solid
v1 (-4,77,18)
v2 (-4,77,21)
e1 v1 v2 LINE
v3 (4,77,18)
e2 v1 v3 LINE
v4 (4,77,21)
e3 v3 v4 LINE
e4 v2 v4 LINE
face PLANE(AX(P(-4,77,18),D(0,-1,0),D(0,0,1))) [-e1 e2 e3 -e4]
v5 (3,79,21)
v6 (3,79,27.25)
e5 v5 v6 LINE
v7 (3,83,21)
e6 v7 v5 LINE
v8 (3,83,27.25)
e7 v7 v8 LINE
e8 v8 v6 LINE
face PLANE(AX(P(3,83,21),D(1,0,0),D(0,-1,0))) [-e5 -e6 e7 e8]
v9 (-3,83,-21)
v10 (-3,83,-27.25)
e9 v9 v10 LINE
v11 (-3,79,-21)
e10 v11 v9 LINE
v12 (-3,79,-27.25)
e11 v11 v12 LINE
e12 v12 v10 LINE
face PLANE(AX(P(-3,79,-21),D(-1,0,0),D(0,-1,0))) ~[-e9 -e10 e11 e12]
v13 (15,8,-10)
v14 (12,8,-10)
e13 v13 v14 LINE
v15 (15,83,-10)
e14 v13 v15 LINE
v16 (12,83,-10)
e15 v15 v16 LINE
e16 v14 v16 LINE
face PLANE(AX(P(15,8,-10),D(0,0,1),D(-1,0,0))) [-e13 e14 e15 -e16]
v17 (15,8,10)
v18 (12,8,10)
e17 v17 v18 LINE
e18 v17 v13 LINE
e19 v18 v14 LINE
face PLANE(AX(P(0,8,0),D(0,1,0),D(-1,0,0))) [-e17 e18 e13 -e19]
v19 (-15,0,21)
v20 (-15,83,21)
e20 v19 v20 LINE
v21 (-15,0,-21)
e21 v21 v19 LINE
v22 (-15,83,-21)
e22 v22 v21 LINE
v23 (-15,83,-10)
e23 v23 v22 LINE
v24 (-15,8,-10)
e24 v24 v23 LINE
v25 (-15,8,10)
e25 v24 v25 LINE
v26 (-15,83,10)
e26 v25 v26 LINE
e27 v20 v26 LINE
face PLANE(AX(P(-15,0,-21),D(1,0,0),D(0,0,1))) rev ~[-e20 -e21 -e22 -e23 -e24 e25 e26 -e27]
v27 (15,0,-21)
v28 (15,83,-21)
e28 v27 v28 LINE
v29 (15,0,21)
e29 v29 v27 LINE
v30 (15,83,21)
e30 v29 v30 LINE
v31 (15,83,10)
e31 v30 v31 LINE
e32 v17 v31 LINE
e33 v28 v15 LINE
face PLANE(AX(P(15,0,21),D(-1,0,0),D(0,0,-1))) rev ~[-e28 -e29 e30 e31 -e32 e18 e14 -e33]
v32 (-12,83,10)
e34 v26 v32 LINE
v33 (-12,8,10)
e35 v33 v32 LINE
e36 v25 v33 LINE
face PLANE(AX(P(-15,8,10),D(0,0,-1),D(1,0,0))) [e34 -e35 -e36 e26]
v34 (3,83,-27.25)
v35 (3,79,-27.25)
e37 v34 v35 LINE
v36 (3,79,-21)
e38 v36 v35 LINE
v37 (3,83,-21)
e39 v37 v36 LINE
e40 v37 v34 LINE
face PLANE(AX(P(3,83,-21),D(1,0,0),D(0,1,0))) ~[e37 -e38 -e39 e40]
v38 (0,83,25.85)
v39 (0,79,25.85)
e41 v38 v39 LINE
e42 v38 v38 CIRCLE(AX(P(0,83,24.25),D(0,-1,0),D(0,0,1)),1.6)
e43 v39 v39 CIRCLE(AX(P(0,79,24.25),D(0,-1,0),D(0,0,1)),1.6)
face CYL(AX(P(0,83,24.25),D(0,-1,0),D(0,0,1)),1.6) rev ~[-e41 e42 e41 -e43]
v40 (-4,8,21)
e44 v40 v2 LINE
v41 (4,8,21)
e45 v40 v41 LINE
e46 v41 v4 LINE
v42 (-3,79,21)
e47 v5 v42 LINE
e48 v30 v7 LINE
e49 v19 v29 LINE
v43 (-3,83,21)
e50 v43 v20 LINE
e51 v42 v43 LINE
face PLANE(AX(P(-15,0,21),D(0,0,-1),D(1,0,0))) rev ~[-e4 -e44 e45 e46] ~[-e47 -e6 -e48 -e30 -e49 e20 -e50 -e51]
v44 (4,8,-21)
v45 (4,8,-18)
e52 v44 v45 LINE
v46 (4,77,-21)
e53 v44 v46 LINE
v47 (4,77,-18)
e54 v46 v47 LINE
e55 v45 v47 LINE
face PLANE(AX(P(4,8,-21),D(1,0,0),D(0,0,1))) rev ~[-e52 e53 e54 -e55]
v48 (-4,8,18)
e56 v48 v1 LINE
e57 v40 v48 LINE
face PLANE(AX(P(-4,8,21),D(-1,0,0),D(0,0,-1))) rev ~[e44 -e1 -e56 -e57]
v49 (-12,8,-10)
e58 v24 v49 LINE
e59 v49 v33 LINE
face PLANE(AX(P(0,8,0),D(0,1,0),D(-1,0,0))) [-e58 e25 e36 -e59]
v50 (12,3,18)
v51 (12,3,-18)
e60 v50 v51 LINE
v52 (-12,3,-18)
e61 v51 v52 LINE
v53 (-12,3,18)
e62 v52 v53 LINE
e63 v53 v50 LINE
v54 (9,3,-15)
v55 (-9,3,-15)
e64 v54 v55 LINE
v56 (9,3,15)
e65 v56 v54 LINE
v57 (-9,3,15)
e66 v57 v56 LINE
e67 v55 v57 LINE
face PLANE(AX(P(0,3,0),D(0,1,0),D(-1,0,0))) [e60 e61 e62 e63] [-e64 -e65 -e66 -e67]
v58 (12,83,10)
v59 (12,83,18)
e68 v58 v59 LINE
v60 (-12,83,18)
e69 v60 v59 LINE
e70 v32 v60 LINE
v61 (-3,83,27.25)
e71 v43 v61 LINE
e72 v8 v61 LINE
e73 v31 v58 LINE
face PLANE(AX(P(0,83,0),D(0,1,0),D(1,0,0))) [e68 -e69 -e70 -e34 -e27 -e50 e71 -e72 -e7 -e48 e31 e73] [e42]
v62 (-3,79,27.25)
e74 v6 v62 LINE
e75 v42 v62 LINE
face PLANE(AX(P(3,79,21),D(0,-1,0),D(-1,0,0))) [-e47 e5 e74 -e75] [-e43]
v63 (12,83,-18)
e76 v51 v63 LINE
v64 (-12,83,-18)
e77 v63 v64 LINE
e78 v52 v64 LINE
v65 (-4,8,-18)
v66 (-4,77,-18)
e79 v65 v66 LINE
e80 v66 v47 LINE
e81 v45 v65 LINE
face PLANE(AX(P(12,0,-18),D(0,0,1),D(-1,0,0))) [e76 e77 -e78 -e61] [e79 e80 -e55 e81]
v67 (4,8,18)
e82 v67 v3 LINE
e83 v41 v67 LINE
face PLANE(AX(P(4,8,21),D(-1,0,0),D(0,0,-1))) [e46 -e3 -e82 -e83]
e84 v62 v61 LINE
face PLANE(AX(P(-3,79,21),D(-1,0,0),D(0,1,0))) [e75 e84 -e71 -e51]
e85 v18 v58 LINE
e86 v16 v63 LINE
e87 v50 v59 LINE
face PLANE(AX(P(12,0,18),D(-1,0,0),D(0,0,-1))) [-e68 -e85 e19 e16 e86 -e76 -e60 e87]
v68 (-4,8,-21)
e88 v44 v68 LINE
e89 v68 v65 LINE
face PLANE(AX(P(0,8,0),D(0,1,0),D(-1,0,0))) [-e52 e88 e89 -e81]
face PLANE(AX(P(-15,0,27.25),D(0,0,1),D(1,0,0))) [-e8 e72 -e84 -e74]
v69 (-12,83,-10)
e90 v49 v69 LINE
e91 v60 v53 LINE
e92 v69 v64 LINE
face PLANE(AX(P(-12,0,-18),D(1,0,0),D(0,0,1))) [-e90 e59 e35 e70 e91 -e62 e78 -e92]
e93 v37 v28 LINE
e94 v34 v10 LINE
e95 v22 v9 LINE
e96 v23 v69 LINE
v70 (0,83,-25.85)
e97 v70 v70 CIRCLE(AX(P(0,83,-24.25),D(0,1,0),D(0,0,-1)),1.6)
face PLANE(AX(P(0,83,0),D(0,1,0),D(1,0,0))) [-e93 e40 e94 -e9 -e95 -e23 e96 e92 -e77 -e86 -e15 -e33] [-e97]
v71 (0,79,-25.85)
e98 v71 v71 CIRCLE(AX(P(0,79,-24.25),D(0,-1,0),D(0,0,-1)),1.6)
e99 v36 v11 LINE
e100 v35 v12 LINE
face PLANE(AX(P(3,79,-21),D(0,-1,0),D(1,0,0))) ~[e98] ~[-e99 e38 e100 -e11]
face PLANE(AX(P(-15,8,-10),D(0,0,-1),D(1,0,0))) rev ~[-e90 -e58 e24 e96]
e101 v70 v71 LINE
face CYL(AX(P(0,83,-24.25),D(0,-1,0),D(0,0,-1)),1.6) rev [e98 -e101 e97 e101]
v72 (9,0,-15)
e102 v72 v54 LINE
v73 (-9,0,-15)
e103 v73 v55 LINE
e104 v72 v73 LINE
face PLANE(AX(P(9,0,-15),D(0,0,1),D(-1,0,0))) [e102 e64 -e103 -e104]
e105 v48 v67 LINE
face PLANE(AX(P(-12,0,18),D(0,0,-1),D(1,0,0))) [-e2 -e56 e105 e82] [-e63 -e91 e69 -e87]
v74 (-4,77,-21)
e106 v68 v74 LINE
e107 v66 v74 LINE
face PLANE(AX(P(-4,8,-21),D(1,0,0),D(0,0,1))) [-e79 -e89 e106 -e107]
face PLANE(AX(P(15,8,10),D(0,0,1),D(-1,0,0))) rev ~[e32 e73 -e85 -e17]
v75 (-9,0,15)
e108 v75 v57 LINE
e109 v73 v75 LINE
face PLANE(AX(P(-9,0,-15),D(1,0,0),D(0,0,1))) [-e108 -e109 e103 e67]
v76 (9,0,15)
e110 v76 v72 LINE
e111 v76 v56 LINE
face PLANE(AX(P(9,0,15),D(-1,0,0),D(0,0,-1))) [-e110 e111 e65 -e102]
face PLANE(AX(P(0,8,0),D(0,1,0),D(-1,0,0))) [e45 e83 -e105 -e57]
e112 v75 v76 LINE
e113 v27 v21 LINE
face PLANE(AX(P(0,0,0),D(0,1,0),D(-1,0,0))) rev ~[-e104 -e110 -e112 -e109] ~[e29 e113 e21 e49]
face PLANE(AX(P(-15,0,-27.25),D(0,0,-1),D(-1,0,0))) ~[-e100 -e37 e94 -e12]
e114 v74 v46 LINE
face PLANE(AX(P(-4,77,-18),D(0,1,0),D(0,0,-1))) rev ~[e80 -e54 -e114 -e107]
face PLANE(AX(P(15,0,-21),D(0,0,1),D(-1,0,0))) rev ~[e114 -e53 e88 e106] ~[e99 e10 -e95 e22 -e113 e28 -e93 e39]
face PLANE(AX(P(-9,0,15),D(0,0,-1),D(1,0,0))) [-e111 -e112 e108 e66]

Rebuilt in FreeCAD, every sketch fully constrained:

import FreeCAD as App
import Part
import Sketcher
from FreeCAD import Vector
Q = App.Units.Quantity

doc = App.newDocument("Part")
body = doc.addObject("PartDesign::Body", "Body")

# Sketch on XZ plane
sketch1 = body.newObject("Sketcher::SketchObject", "Sketch")
sketch1.AttachmentSupport = (doc.getObject("XZ_Plane"), [""])
sketch1.MapMode = "FlatFace"
sketch1.addGeometry([
    Part.LineSegment(Vector(-12, -18, 0), Vector(-12, 18, 0)),  # 0
    Part.LineSegment(Vector(-12, 18, 0), Vector(12, 18, 0)),  # 1
    Part.LineSegment(Vector(12, 18, 0), Vector(12, -18, 0)),  # 2
    Part.LineSegment(Vector(12, -18, 0), Vector(-12, -18, 0)),  # 3
    Part.LineSegment(Vector(9, 15, 0), Vector(-9, 15, 0)),  # 4
    Part.LineSegment(Vector(-9, 15, 0), Vector(-9, -15, 0)),  # 5
    Part.LineSegment(Vector(-9, -15, 0), Vector(9, -15, 0)),  # 6
    Part.LineSegment(Vector(9, -15, 0), Vector(9, 15, 0)),  # 7
], False)
sketch1.addConstraint([
    Sketcher.Constraint("Coincident", 0, 2, 1, 1),
    Sketcher.Constraint("Coincident", 1, 2, 2, 1),
    Sketcher.Constraint("Coincident", 2, 2, 3, 1),
    Sketcher.Constraint("Coincident", 3, 2, 0, 1),
    Sketcher.Constraint("Coincident", 4, 2, 5, 1),
    Sketcher.Constraint("Coincident", 5, 2, 6, 1),
    Sketcher.Constraint("Coincident", 6, 2, 7, 1),
    Sketcher.Constraint("Coincident", 7, 2, 4, 1),
    Sketcher.Constraint("Vertical", 0),
    Sketcher.Constraint("Horizontal", 1),
    Sketcher.Constraint("Vertical", 2),
    Sketcher.Constraint("Horizontal", 3),
    Sketcher.Constraint("Horizontal", 4),
    Sketcher.Constraint("Vertical", 5),
    Sketcher.Constraint("Horizontal", 6),
    Sketcher.Constraint("Vertical", 7),
    Sketcher.Constraint("Symmetric", 0, 2, 2, 2, -1, 1),
    Sketcher.Constraint("Symmetric", 4, 2, 6, 2, -1, 1),
    Sketcher.Constraint("DistanceX", 1, 1, 1, 2, Q("24 mm")),
    Sketcher.Constraint("DistanceX", 4, 2, 4, 1, Q("18 mm")),
    Sketcher.Constraint("DistanceY", 0, 1, 0, 2, Q("36 mm")),
    Sketcher.Constraint("DistanceY", 5, 2, 5, 1, Q("30 mm")),
])
pad1 = body.newObject("PartDesign::Pad", "Pad")
pad1.Profile = sketch1
pad1.Length = 3
pad1.Reversed = True

# Sketch on XZ plane
sketch2 = body.newObject("Sketcher::SketchObject", "Sketch001")
sketch2.AttachmentSupport = (doc.getObject("XZ_Plane"), [""])
sketch2.MapMode = "FlatFace"
sketch2.addGeometry([
    Part.LineSegment(Vector(-15, -21, 0), Vector(-15, 21, 0)),  # 0
    Part.LineSegment(Vector(-15, 21, 0), Vector(15, 21, 0)),  # 1
    Part.LineSegment(Vector(15, 21, 0), Vector(15, -21, 0)),  # 2
    Part.LineSegment(Vector(15, -21, 0), Vector(-15, -21, 0)),  # 3
    Part.LineSegment(Vector(12, 18, 0), Vector(-12, 18, 0)),  # 4
    Part.LineSegment(Vector(-12, 18, 0), Vector(-12, -18, 0)),  # 5
    Part.LineSegment(Vector(-12, -18, 0), Vector(12, -18, 0)),  # 6
    Part.LineSegment(Vector(12, -18, 0), Vector(12, 18, 0)),  # 7
], False)
sketch2.addConstraint([
    Sketcher.Constraint("Coincident", 0, 2, 1, 1),
    Sketcher.Constraint("Coincident", 1, 2, 2, 1),
    Sketcher.Constraint("Coincident", 2, 2, 3, 1),
    Sketcher.Constraint("Coincident", 3, 2, 0, 1),
    Sketcher.Constraint("Coincident", 4, 2, 5, 1),
    Sketcher.Constraint("Coincident", 5, 2, 6, 1),
    Sketcher.Constraint("Coincident", 6, 2, 7, 1),
    Sketcher.Constraint("Coincident", 7, 2, 4, 1),
    Sketcher.Constraint("Vertical", 0),
    Sketcher.Constraint("Horizontal", 1),
    Sketcher.Constraint("Vertical", 2),
    Sketcher.Constraint("Horizontal", 3),
    Sketcher.Constraint("Horizontal", 4),
    Sketcher.Constraint("Vertical", 5),
    Sketcher.Constraint("Horizontal", 6),
    Sketcher.Constraint("Vertical", 7),
    Sketcher.Constraint("Symmetric", 0, 2, 2, 2, -1, 1),
    Sketcher.Constraint("Symmetric", 4, 2, 6, 2, -1, 1),
    Sketcher.Constraint("DistanceX", 1, 1, 1, 2, Q("30 mm")),
    Sketcher.Constraint("DistanceX", 4, 2, 4, 1, Q("24 mm")),
    Sketcher.Constraint("DistanceY", 0, 1, 0, 2, Q("42 mm")),
    Sketcher.Constraint("DistanceY", 5, 2, 5, 1, Q("36 mm")),
])
pad2 = body.newObject("PartDesign::Pad", "Pad001")
pad2.Profile = sketch2
pad2.Length = 8
pad2.Reversed = True

# Sketch on XZ plane
sketch3 = body.newObject("Sketcher::SketchObject", "Sketch002")
sketch3.AttachmentSupport = (doc.getObject("XZ_Plane"), [""])
sketch3.MapMode = "FlatFace"
sketch3.AttachmentOffset = App.Placement(Vector(0, 0, -8), App.Rotation())
sketch3.addGeometry([
    Part.LineSegment(Vector(-4, -21, 0), Vector(-15, -21, 0)),  # 0
    Part.LineSegment(Vector(-15, -21, 0), Vector(-15, -10, 0)),  # 1
    Part.LineSegment(Vector(-15, -10, 0), Vector(-12, -10, 0)),  # 2
    Part.LineSegment(Vector(-12, -10, 0), Vector(-12, -18, 0)),  # 3
    Part.LineSegment(Vector(-12, -18, 0), Vector(-4, -18, 0)),  # 4
    Part.LineSegment(Vector(-4, -18, 0), Vector(-4, -21, 0)),  # 5
    Part.LineSegment(Vector(12, -10, 0), Vector(15, -10, 0)),  # 6
    Part.LineSegment(Vector(15, -10, 0), Vector(15, -21, 0)),  # 7
    Part.LineSegment(Vector(15, -21, 0), Vector(4, -21, 0)),  # 8
    Part.LineSegment(Vector(4, -21, 0), Vector(4, -18, 0)),  # 9
    Part.LineSegment(Vector(4, -18, 0), Vector(12, -18, 0)),  # 10
    Part.LineSegment(Vector(12, -18, 0), Vector(12, -10, 0)),  # 11
    Part.LineSegment(Vector(12, 18, 0), Vector(4, 18, 0)),  # 12
    Part.LineSegment(Vector(4, 18, 0), Vector(4, 21, 0)),  # 13
    Part.LineSegment(Vector(4, 21, 0), Vector(15, 21, 0)),  # 14
    Part.LineSegment(Vector(15, 21, 0), Vector(15, 10, 0)),  # 15
    Part.LineSegment(Vector(15, 10, 0), Vector(12, 10, 0)),  # 16
    Part.LineSegment(Vector(12, 10, 0), Vector(12, 18, 0)),  # 17
    Part.LineSegment(Vector(-12, 10, 0), Vector(-15, 10, 0)),  # 18
    Part.LineSegment(Vector(-15, 10, 0), Vector(-15, 21, 0)),  # 19
    Part.LineSegment(Vector(-15, 21, 0), Vector(-4, 21, 0)),  # 20
    Part.LineSegment(Vector(-4, 21, 0), Vector(-4, 18, 0)),  # 21
    Part.LineSegment(Vector(-4, 18, 0), Vector(-12, 18, 0)),  # 22
    Part.LineSegment(Vector(-12, 18, 0), Vector(-12, 10, 0)),  # 23
], False)
sketch3.addConstraint([
    Sketcher.Constraint("Coincident", 0, 2, 1, 1),
    Sketcher.Constraint("Coincident", 1, 2, 2, 1),
    Sketcher.Constraint("Coincident", 2, 2, 3, 1),
    Sketcher.Constraint("Coincident", 3, 2, 4, 1),
    Sketcher.Constraint("Coincident", 4, 2, 5, 1),
    Sketcher.Constraint("Coincident", 5, 2, 0, 1),
    Sketcher.Constraint("Coincident", 6, 2, 7, 1),
    Sketcher.Constraint("Coincident", 7, 2, 8, 1),
    Sketcher.Constraint("Coincident", 8, 2, 9, 1),
    Sketcher.Constraint("Coincident", 9, 2, 10, 1),
    Sketcher.Constraint("Coincident", 10, 2, 11, 1),
    Sketcher.Constraint("Coincident", 11, 2, 6, 1),
    Sketcher.Constraint("Coincident", 12, 2, 13, 1),
    Sketcher.Constraint("Coincident", 13, 2, 14, 1),
    Sketcher.Constraint("Coincident", 14, 2, 15, 1),
    Sketcher.Constraint("Coincident", 15, 2, 16, 1),
    Sketcher.Constraint("Coincident", 16, 2, 17, 1),
    Sketcher.Constraint("Coincident", 17, 2, 12, 1),
    Sketcher.Constraint("Coincident", 18, 2, 19, 1),
    Sketcher.Constraint("Coincident", 19, 2, 20, 1),
    Sketcher.Constraint("Coincident", 20, 2, 21, 1),
    Sketcher.Constraint("Coincident", 21, 2, 22, 1),
    Sketcher.Constraint("Coincident", 22, 2, 23, 1),
    Sketcher.Constraint("Coincident", 23, 2, 18, 1),
    Sketcher.Constraint("Horizontal", 0),
    Sketcher.Constraint("Vertical", 1),
    Sketcher.Constraint("Horizontal", 2),
    Sketcher.Constraint("Vertical", 3),
    Sketcher.Constraint("Horizontal", 4),
    Sketcher.Constraint("Vertical", 5),
    Sketcher.Constraint("Horizontal", 6),
    Sketcher.Constraint("Vertical", 7),
    Sketcher.Constraint("Horizontal", 8),
    Sketcher.Constraint("Vertical", 9),
    Sketcher.Constraint("Horizontal", 10),
    Sketcher.Constraint("Vertical", 11),
    Sketcher.Constraint("Horizontal", 12),
    Sketcher.Constraint("Vertical", 13),
    Sketcher.Constraint("Horizontal", 14),
    Sketcher.Constraint("Vertical", 15),
    Sketcher.Constraint("Horizontal", 16),
    Sketcher.Constraint("Vertical", 17),
    Sketcher.Constraint("Horizontal", 18),
    Sketcher.Constraint("Vertical", 19),
    Sketcher.Constraint("Horizontal", 20),
    Sketcher.Constraint("Vertical", 21),
    Sketcher.Constraint("Horizontal", 22),
    Sketcher.Constraint("Vertical", 23),
    Sketcher.Constraint("Symmetric", 4, 2, 12, 2, -1, 1),
    Sketcher.Constraint("Symmetric", 0, 2, 14, 2, -1, 1),
    Sketcher.Constraint("Symmetric", 2, 2, 16, 2, -1, 1),
    Sketcher.Constraint("Symmetric", 6, 2, 18, 2, -1, 1),
    Sketcher.Constraint("Symmetric", 8, 2, 20, 2, -1, 1),
    Sketcher.Constraint("Symmetric", 10, 2, 22, 2, -1, 1),
    Sketcher.Constraint("Symmetric", 1, 2, 6, 2, -2),
    Sketcher.Constraint("Symmetric", 5, 2, 8, 2, -2),
    Sketcher.Constraint("Symmetric", 3, 2, 10, 2, -2),
    Sketcher.Constraint("Equal", 20, 1),
    Sketcher.Constraint("Equal", 22, 3),
    Sketcher.Constraint("DistanceX", 0, 2, 0, 1, Q("11 mm")),
    Sketcher.Constraint("DistanceX", 4, 1, 4, 2, Q("8 mm")),
    Sketcher.Constraint("DistanceX", 5, 2, 8, 2, Q("8 mm")),
    Sketcher.Constraint("DistanceY", 0, 2, -1, 1, Q("21 mm")),
])
pad3 = body.newObject("PartDesign::Pad", "Pad002")
pad3.Profile = sketch3
pad3.Length = 75
pad3.Reversed = True

# Sketch on YZ plane
sketch4 = body.newObject("Sketcher::SketchObject", "Sketch003")
sketch4.AttachmentSupport = (doc.getObject("YZ_Plane"), [""])
sketch4.MapMode = "FlatFace"
sketch4.AttachmentOffset = App.Placement(Vector(0, 0, -4), App.Rotation())
sketch4.addGeometry([
    Part.LineSegment(Vector(83, 18, 0), Vector(83, 21, 0)),  # 0
    Part.LineSegment(Vector(83, 21, 0), Vector(77, 21, 0)),  # 1
    Part.LineSegment(Vector(77, 21, 0), Vector(77, 18, 0)),  # 2
    Part.LineSegment(Vector(77, 18, 0), Vector(83, 18, 0)),  # 3
    Part.LineSegment(Vector(77, -21, 0), Vector(83, -21, 0)),  # 4
    Part.LineSegment(Vector(83, -21, 0), Vector(83, -18, 0)),  # 5
    Part.LineSegment(Vector(83, -18, 0), Vector(77, -18, 0)),  # 6
    Part.LineSegment(Vector(77, -18, 0), Vector(77, -21, 0)),  # 7
], False)
sketch4.addConstraint([
    Sketcher.Constraint("Coincident", 0, 2, 1, 1),
    Sketcher.Constraint("Coincident", 1, 2, 2, 1),
    Sketcher.Constraint("Coincident", 2, 2, 3, 1),
    Sketcher.Constraint("Coincident", 3, 2, 0, 1),
    Sketcher.Constraint("Coincident", 4, 2, 5, 1),
    Sketcher.Constraint("Coincident", 5, 2, 6, 1),
    Sketcher.Constraint("Coincident", 6, 2, 7, 1),
    Sketcher.Constraint("Coincident", 7, 2, 4, 1),
    Sketcher.Constraint("Vertical", 0),
    Sketcher.Constraint("Horizontal", 1),
    Sketcher.Constraint("Vertical", 2),
    Sketcher.Constraint("Horizontal", 3),
    Sketcher.Constraint("Horizontal", 4),
    Sketcher.Constraint("Vertical", 5),
    Sketcher.Constraint("Horizontal", 6),
    Sketcher.Constraint("Vertical", 7),
    Sketcher.Constraint("Symmetric", 0, 2, 4, 2, -1),
    Sketcher.Constraint("Symmetric", 2, 2, 6, 2, -1),
    Sketcher.Constraint("DistanceX", 1, 2, 1, 1, Q("6 mm")),
    Sketcher.Constraint("DistanceY", -1, 1, 0, 2, Q("21 mm")),
    Sketcher.Constraint("DistanceY", 0, 1, 0, 2, Q("3 mm")),
    Sketcher.Constraint("DistanceX", -1, 1, 0, 2, Q("83 mm")),
])
pad4 = body.newObject("PartDesign::Pad", "Pad003")
pad4.Profile = sketch4
pad4.Length = 9

# Sketch on XY plane
sketch5 = body.newObject("Sketcher::SketchObject", "Sketch004")
sketch5.AttachmentSupport = (doc.getObject("XY_Plane"), [""])
sketch5.MapMode = "FlatFace"
sketch5.AttachmentOffset = App.Placement(Vector(0, 0, 21), App.Rotation())
sketch5.addGeometry([
    Part.LineSegment(Vector(3, 79, 0), Vector(3, 83, 0)),
    Part.LineSegment(Vector(3, 83, 0), Vector(-3, 83, 0)),
    Part.LineSegment(Vector(-3, 83, 0), Vector(-3, 79, 0)),
    Part.LineSegment(Vector(-3, 79, 0), Vector(3, 79, 0)),
], False)
sketch5.addConstraint([
    Sketcher.Constraint("Coincident", 0, 2, 1, 1),
    Sketcher.Constraint("Coincident", 1, 2, 2, 1),
    Sketcher.Constraint("Coincident", 2, 2, 3, 1),
    Sketcher.Constraint("Coincident", 3, 2, 0, 1),
    Sketcher.Constraint("Vertical", 0),
    Sketcher.Constraint("Horizontal", 1),
    Sketcher.Constraint("Vertical", 2),
    Sketcher.Constraint("Horizontal", 3),
    Sketcher.Constraint("DistanceX", 1, 2, 1, 1, Q("6 mm")),
    Sketcher.Constraint("DistanceY", 0, 1, 0, 2, Q("4 mm")),
    Sketcher.Constraint("DistanceX", -1, 1, 0, 2, Q("3 mm")),
    Sketcher.Constraint("DistanceY", -1, 1, 0, 2, Q("83 mm")),
])
pad5 = body.newObject("PartDesign::Pad", "Pad004")
pad5.Profile = sketch5
pad5.Length = 6.25
doc.recompute()

mirrored = body.newObject("PartDesign::Mirrored", "Mirrored")
mirrored.Originals = [pad5]
mirrored.MirrorPlane = (doc.getObject("XY_Plane"), [""])
body.Tip = mirrored

# Sketch on XZ plane
sketch6 = body.newObject("Sketcher::SketchObject", "Sketch005")
sketch6.AttachmentSupport = (doc.getObject("XZ_Plane"), [""])
sketch6.MapMode = "FlatFace"
sketch6.AttachmentOffset = App.Placement(Vector(0, 0, -83), App.Rotation())
sketch6.addGeometry(Part.Circle(Vector(0, 24.2, 0), Vector(0, 0, 1), 1.6), False)
sketch6.addConstraint([
    Sketcher.Constraint("PointOnObject", 0, 3, -2),
    Sketcher.Constraint("Diameter", 0, Q("3.2 mm")),
    Sketcher.Constraint("DistanceY", -1, 1, 0, 3, Q("24.25 mm")),
])
doc.recompute()
hole = body.newObject("PartDesign::Hole", "Hole")
hole.Profile = sketch6
hole.ThreadType = "None"
hole.Diameter = 3.2
hole.DepthType = "ThroughAll"
hole.Reversed = True
doc.recompute()

mirrored2 = body.newObject("PartDesign::Mirrored", "Mirrored001")
mirrored2.Originals = [hole]
mirrored2.MirrorPlane = (doc.getObject("XY_Plane"), [""])
body.Tip = mirrored2

doc.recompute()
